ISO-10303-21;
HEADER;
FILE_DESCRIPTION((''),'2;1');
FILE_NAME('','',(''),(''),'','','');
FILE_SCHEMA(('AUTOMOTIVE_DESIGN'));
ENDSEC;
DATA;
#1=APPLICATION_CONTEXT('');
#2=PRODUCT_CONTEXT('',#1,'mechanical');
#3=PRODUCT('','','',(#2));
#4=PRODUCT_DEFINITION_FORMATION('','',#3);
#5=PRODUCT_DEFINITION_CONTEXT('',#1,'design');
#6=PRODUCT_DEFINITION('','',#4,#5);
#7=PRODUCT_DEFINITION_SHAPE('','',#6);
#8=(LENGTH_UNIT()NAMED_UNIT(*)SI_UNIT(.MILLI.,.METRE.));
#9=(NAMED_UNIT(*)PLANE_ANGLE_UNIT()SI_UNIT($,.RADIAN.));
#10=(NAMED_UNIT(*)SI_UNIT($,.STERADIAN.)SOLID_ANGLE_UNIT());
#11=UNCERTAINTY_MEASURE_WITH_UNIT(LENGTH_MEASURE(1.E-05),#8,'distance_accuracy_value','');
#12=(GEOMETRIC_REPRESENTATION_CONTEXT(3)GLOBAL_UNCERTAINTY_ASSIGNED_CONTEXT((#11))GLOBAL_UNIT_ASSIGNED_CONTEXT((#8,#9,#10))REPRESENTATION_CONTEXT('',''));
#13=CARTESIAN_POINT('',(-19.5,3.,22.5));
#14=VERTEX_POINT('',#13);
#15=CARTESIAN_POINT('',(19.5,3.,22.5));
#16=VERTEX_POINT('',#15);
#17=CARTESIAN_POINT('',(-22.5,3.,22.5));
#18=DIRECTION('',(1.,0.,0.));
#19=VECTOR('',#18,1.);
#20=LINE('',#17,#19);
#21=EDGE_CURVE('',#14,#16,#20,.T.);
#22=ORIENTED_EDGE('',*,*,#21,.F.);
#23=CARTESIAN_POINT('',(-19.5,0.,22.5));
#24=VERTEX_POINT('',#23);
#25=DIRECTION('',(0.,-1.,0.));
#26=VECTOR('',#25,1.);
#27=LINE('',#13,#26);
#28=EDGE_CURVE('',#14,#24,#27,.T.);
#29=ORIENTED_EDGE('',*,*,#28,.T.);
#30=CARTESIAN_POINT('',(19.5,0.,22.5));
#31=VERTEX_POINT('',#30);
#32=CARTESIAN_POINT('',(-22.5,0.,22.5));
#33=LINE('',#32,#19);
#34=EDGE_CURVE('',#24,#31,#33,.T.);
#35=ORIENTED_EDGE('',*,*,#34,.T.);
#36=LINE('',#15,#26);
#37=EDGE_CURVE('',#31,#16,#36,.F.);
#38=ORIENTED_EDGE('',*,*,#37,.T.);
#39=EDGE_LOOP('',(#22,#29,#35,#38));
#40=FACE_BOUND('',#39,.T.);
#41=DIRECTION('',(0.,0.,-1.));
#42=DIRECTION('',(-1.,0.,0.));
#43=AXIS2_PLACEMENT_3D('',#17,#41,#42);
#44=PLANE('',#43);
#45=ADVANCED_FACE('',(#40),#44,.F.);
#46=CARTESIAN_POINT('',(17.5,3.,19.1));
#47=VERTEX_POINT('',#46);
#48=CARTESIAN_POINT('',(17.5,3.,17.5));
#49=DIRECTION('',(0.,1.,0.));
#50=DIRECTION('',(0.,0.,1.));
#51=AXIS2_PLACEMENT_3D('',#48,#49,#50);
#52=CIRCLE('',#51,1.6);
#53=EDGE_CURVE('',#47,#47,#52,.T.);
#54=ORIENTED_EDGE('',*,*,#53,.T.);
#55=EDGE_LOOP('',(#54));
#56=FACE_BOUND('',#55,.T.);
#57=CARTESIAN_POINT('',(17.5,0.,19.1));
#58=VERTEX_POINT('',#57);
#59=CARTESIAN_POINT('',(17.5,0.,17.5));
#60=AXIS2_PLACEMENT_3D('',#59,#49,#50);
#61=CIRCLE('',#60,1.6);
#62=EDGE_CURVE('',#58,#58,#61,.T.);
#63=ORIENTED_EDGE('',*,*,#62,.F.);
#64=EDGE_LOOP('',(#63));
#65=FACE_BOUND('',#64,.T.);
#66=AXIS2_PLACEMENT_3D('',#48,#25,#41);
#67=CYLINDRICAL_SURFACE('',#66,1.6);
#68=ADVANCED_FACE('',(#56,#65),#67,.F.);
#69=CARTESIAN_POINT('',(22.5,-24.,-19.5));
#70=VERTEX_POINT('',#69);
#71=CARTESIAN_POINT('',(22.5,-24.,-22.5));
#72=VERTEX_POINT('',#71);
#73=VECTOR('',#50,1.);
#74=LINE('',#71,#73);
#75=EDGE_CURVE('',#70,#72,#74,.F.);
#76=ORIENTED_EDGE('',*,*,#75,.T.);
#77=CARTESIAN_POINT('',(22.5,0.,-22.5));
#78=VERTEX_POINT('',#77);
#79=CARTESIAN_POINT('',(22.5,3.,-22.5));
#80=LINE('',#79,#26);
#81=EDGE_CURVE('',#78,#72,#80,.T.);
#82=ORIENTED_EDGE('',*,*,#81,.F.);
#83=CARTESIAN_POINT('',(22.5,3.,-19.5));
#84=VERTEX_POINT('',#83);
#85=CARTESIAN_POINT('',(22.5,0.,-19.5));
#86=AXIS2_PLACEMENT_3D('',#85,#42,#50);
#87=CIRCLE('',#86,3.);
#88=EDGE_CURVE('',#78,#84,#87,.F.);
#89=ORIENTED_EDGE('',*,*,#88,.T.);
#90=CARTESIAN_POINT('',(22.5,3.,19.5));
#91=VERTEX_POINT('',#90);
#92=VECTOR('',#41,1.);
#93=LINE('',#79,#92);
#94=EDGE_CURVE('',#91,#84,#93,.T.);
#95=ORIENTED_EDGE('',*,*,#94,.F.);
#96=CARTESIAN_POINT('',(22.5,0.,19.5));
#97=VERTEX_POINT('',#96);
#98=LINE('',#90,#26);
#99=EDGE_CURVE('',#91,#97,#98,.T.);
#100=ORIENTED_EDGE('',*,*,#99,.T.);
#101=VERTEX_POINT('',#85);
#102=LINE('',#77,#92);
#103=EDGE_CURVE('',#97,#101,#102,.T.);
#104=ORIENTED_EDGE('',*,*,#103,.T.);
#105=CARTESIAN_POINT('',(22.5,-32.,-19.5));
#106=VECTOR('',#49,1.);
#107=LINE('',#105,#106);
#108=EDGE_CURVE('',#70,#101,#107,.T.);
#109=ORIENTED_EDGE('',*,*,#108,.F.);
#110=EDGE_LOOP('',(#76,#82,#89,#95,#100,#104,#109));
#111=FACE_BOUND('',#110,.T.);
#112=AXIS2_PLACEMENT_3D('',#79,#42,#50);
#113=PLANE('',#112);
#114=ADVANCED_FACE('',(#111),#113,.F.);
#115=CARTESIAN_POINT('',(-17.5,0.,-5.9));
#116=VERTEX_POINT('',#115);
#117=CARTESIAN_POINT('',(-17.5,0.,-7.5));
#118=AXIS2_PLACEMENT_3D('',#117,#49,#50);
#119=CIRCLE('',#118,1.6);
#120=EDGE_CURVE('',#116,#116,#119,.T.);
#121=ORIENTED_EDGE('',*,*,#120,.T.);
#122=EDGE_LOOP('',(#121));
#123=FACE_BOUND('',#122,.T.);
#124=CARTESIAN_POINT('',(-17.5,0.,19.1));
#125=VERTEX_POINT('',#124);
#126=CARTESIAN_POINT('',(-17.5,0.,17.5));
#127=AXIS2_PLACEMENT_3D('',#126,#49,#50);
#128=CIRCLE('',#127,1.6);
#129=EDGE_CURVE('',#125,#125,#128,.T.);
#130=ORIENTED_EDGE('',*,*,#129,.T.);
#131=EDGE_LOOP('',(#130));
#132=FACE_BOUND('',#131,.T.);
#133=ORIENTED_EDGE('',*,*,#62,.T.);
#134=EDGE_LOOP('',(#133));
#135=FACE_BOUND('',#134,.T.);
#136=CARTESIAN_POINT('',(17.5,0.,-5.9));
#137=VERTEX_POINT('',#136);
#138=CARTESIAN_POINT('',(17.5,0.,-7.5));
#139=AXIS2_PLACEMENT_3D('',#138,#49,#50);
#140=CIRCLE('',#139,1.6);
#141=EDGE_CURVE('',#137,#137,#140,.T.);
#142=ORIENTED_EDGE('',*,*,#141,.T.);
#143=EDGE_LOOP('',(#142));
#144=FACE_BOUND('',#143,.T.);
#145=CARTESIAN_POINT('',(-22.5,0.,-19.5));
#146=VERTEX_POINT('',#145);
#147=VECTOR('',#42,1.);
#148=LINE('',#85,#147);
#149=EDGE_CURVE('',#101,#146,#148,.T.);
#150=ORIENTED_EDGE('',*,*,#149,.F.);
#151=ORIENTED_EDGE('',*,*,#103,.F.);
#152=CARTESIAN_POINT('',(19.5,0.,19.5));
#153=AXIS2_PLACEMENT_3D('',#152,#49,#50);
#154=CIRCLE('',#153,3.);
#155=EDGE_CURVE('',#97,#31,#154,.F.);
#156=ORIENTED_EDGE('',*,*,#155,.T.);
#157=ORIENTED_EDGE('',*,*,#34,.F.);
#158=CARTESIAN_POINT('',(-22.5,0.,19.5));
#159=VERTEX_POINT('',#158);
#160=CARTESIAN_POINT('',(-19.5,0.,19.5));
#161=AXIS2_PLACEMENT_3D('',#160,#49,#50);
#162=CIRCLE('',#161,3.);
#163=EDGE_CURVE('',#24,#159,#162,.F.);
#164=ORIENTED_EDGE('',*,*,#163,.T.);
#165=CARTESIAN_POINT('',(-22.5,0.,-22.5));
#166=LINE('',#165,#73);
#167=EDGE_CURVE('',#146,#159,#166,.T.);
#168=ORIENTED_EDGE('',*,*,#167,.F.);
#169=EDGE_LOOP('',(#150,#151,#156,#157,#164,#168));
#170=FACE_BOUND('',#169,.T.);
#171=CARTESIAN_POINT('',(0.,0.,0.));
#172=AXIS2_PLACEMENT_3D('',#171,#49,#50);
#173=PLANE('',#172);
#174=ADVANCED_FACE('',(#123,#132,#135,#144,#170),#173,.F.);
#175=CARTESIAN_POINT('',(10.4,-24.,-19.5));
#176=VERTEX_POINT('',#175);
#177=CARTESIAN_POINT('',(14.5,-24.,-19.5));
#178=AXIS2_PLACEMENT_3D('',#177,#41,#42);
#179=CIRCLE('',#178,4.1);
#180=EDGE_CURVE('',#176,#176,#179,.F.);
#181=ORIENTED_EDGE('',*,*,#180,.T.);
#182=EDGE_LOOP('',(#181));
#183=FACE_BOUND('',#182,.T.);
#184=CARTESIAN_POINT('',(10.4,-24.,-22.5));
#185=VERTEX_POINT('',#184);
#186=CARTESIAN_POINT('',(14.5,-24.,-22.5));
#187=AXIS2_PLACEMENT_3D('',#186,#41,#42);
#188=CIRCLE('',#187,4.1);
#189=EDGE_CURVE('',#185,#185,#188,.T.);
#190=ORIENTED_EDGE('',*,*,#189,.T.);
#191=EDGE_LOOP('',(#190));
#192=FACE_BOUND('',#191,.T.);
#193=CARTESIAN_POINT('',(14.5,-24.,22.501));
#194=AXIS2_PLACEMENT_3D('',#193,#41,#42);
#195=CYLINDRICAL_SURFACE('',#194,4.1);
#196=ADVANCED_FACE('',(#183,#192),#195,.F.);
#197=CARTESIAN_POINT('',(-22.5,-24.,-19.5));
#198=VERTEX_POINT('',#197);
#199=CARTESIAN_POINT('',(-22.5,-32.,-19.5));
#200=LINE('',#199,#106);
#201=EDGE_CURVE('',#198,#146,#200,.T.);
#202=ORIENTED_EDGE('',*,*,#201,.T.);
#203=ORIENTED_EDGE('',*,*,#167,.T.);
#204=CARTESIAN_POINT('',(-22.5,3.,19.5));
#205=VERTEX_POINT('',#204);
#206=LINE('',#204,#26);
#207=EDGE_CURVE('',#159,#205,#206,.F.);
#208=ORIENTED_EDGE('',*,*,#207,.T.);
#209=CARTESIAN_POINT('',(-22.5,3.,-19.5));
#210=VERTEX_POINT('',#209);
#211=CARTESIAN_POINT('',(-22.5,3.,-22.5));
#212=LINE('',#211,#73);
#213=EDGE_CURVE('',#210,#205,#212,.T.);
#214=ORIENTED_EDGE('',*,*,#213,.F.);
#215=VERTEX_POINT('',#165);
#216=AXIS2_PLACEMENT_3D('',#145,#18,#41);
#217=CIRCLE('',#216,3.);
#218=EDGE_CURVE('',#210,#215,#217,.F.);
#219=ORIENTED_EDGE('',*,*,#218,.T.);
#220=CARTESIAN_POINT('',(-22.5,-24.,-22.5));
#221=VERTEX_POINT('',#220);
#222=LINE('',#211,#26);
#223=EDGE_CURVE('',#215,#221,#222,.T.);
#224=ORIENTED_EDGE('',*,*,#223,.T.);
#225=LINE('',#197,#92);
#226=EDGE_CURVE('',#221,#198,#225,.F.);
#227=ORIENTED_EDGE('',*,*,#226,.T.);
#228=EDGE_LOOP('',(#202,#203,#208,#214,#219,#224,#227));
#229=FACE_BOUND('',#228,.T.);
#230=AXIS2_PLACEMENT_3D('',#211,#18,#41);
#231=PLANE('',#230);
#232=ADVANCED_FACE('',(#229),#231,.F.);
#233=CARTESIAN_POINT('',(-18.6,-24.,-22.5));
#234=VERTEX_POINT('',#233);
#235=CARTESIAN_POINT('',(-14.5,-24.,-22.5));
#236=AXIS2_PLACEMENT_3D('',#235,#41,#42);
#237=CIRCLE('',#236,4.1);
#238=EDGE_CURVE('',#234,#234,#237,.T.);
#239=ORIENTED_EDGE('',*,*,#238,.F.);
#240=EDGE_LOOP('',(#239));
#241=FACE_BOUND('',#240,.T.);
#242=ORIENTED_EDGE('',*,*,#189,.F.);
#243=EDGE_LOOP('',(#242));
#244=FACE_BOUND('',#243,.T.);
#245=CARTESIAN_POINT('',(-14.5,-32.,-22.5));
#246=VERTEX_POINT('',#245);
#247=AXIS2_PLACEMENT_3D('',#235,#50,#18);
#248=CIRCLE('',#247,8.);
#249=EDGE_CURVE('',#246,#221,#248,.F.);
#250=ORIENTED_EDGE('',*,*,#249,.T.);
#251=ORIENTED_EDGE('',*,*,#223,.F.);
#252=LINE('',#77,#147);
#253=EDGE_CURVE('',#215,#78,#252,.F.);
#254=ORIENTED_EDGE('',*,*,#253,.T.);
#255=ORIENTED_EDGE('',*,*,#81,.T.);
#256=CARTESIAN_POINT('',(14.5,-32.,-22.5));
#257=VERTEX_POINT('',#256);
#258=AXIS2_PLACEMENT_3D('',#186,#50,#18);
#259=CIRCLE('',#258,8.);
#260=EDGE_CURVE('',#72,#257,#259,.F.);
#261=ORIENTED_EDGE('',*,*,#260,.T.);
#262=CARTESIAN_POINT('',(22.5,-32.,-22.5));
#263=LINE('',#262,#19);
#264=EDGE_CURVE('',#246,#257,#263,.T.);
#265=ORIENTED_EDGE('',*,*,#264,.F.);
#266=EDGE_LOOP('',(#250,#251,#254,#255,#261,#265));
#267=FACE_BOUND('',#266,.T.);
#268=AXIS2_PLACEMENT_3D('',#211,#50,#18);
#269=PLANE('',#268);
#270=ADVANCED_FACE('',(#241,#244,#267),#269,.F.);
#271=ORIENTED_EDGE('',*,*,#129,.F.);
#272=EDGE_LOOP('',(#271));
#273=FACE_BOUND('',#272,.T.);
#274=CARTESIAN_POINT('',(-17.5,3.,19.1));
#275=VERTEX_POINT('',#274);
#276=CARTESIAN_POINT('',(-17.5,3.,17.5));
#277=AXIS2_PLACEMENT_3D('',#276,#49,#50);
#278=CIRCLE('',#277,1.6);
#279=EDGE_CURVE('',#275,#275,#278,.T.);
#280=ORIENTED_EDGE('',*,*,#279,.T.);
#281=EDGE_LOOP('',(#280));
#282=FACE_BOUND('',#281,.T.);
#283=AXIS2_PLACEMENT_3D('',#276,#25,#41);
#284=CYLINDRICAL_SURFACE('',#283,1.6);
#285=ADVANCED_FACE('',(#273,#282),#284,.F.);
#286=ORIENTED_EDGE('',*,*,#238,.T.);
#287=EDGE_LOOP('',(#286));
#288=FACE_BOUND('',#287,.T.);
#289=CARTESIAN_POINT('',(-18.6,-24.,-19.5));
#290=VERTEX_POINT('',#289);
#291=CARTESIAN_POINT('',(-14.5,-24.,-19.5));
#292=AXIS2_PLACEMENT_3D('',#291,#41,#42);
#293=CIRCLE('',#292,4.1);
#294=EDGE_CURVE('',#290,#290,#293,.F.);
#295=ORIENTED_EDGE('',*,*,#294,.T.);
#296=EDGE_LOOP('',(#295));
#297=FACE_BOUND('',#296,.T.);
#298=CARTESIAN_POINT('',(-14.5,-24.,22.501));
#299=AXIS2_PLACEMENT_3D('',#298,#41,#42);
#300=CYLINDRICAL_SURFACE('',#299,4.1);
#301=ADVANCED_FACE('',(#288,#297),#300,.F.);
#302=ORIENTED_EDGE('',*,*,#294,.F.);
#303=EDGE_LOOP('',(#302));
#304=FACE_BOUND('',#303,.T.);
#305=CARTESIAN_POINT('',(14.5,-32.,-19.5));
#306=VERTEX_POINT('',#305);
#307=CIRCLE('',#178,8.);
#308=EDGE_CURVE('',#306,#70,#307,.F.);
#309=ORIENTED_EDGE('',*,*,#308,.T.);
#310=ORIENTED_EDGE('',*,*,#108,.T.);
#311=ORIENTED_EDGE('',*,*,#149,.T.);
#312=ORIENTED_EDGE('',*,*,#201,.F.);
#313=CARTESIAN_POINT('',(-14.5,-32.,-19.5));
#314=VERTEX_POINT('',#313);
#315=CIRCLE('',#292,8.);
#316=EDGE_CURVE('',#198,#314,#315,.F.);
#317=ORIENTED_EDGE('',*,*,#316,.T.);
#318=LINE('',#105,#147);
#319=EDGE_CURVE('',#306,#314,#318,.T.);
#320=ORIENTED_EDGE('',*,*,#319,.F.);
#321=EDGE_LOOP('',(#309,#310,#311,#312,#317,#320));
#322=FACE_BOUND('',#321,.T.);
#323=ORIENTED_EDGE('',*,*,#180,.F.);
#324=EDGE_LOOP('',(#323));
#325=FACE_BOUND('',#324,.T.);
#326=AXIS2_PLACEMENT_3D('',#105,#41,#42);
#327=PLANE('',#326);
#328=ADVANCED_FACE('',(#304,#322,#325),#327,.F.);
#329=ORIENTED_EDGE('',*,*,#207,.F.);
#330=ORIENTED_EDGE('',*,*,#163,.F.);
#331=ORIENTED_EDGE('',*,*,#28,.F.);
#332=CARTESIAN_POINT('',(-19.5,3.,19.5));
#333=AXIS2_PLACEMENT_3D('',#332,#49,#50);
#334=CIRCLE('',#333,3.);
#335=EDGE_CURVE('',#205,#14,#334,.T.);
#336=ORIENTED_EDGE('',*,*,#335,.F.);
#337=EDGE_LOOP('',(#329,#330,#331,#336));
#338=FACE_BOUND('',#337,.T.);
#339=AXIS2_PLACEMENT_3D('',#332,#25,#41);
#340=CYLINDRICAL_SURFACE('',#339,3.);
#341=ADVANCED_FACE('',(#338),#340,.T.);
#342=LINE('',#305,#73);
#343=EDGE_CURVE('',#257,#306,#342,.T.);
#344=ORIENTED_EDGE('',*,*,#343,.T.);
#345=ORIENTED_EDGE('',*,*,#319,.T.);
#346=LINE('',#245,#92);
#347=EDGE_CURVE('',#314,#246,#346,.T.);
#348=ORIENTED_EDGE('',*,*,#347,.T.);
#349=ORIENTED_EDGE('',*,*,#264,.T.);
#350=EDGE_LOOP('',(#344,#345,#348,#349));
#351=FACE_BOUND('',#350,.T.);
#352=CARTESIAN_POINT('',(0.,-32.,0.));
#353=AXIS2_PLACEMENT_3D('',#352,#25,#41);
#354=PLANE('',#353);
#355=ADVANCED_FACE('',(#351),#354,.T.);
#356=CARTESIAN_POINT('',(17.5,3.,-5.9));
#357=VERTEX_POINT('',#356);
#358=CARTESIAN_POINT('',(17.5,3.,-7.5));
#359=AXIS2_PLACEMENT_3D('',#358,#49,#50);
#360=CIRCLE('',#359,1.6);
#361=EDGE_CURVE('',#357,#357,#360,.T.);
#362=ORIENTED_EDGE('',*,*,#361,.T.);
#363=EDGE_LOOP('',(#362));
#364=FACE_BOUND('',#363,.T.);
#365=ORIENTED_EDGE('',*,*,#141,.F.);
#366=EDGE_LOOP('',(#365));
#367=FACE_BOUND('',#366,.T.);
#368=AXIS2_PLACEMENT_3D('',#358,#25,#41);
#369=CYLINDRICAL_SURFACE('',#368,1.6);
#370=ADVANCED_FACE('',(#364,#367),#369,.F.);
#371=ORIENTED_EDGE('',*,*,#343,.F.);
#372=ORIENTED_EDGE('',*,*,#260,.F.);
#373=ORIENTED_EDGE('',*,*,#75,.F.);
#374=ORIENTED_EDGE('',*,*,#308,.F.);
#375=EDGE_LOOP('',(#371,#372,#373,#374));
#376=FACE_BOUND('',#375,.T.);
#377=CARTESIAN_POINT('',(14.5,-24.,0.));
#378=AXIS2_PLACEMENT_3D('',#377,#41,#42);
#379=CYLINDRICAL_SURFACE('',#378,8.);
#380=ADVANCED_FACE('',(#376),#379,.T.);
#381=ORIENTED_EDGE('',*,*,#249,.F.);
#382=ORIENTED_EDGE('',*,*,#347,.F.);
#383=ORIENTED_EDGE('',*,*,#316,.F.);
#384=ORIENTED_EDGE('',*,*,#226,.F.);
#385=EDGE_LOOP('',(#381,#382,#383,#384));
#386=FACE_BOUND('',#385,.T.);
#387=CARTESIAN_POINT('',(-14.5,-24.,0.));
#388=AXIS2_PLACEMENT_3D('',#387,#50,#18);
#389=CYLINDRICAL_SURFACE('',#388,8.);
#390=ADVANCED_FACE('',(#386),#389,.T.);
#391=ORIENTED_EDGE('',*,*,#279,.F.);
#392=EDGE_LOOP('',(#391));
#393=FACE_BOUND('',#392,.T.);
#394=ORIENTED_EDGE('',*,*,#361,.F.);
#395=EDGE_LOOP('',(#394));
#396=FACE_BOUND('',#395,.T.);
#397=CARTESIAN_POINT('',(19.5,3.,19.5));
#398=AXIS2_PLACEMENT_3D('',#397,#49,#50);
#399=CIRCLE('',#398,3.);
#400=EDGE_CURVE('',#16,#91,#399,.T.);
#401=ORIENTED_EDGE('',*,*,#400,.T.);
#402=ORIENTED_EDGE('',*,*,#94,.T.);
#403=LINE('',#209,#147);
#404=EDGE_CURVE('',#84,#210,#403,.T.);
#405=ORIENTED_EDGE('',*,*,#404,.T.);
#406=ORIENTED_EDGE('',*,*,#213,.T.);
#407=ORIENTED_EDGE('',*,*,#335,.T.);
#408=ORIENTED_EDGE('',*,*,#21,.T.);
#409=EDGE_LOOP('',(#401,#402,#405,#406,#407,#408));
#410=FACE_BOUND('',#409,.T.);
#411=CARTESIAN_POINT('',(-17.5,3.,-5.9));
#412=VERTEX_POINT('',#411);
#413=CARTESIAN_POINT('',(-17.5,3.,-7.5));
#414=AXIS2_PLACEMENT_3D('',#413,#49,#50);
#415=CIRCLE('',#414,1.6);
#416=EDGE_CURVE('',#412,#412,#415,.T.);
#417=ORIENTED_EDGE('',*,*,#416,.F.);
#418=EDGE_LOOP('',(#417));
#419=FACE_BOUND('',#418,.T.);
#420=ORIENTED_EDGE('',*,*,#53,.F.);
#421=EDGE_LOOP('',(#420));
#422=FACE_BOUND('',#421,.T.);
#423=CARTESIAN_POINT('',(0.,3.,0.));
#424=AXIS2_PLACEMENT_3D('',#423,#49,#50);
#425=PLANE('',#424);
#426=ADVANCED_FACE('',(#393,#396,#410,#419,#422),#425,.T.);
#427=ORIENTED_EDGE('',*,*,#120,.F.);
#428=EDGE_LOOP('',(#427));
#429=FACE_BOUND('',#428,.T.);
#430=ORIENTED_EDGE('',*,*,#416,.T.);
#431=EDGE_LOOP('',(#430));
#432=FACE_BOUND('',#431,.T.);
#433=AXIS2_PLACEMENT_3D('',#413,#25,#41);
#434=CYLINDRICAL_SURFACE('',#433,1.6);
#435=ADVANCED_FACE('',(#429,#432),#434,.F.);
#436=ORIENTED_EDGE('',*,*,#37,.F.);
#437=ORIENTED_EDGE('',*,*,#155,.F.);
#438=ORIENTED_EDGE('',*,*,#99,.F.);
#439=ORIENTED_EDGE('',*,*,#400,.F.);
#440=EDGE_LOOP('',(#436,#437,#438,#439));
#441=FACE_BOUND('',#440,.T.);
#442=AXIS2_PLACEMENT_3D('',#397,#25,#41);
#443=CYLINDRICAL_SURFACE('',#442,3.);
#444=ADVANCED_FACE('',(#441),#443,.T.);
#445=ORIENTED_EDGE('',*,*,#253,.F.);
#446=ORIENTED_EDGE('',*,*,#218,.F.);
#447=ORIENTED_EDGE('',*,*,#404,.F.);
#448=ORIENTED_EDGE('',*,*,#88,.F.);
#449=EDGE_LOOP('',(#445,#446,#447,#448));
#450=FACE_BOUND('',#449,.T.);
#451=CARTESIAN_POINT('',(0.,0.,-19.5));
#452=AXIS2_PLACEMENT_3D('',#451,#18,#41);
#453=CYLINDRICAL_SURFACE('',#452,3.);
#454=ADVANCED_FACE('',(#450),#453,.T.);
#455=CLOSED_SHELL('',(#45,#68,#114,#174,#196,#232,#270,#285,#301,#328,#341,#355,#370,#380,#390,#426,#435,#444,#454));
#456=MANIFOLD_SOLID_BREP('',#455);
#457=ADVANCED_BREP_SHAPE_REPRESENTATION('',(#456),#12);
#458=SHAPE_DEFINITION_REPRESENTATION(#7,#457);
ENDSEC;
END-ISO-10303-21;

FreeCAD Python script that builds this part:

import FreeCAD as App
import Part
import Sketcher


def edges_at(feature, points):
    """Names of the edges that pass closest to the given points."""
    edges = feature.Shape.Edges
    near = lambda p: min(range(len(edges)), key=lambda i: edges[i].distToShape(Part.Vertex(*p))[0])
    return sorted({f"Edge{near(p) + 1}" for p in points})

doc = App.newDocument("Part")
body = doc.addObject("PartDesign::Body", "Body")

# Sketch on XZ plane
sketch1 = body.newObject("Sketcher::SketchObject", "Sketch")
sketch1.AttachmentSupport = (doc.getObject("XZ_Plane"), [""])
sketch1.MapMode = "FlatFace"
sketch1.addGeometry([
    Part.LineSegment(App.Vector(-22.5, -22.5, 0), App.Vector(-22.5, 22.5, 0)),  # 0
    Part.LineSegment(App.Vector(-22.5, 22.5, 0), App.Vector(22.5, 22.5, 0)),  # 1
    Part.LineSegment(App.Vector(22.5, 22.5, 0), App.Vector(22.5, -22.5, 0)),  # 2
    Part.LineSegment(App.Vector(22.5, -22.5, 0), App.Vector(-22.5, -22.5, 0)),  # 3
    Part.Circle(App.Vector(-17.5, 17.5, 0), App.Vector(0, 0, 1), 1.6),  # 4
    Part.Circle(App.Vector(17.5, 17.5, 0), App.Vector(0, 0, 1), 1.6),  # 5
    Part.Circle(App.Vector(-17.5, -7.5, 0), App.Vector(0, 0, 1), 1.6),  # 6
    Part.Circle(App.Vector(17.5, -7.5, 0), App.Vector(0, 0, 1), 1.6),  # 7
], False)
sketch1.addConstraint([
    Sketcher.Constraint("Coincident", 0, 2, 1, 1),
    Sketcher.Constraint("Coincident", 1, 2, 2, 1),
    Sketcher.Constraint("Coincident", 2, 2, 3, 1),
    Sketcher.Constraint("Coincident", 3, 2, 0, 1),
    Sketcher.Constraint("Vertical", 0),
    Sketcher.Constraint("Horizontal", 1),
    Sketcher.Constraint("Vertical", 2),
    Sketcher.Constraint("Horizontal", 3),
    Sketcher.Constraint("Equal", 4, 5),
    Sketcher.Constraint("Equal", 5, 6),
    Sketcher.Constraint("Equal", 6, 7),
    Sketcher.Constraint("Symmetric", 0, 2, 2, 2, -1, 1),
    Sketcher.Constraint("Symmetric", 4, 3, 5, 3, -2),
    Sketcher.Constraint("Symmetric", 6, 3, 7, 3, -2),
    Sketcher.Constraint("Vertical", 4, 3, 6, 3),
    Sketcher.Constraint("Equal", 3, 0),
    Sketcher.Constraint("Diameter", 4, 3.2),
    Sketcher.Constraint("DistanceX", 1, 1, 1, 2, 45.0),
    Sketcher.Constraint("DistanceX", 4, 3, 5, 3, 35.0),
    Sketcher.Constraint("DistanceY", 6, 3, 4, 3, 25.0),
    Sketcher.Constraint("DistanceY", 4, 3, 0, 2, 5.0),
])
pad1 = body.newObject("PartDesign::Pad", "Pad")
pad1.Profile = sketch1
pad1.Length = 3
pad1.Reversed = True

# Sketch on XZ plane
sketch2 = body.newObject("Sketcher::SketchObject", "Sketch001")
sketch2.AttachmentSupport = (doc.getObject("XZ_Plane"), [""])
sketch2.MapMode = "FlatFace"
sketch2.addGeometry([
    Part.LineSegment(App.Vector(-22.5, -19.5, 0), App.Vector(-22.5, -22.5, 0)),
    Part.LineSegment(App.Vector(-22.5, -22.5, 0), App.Vector(22.5, -22.5, 0)),
    Part.LineSegment(App.Vector(22.5, -22.5, 0), App.Vector(22.5, -19.5, 0)),
    Part.LineSegment(App.Vector(22.5, -19.5, 0), App.Vector(-22.5, -19.5, 0)),
], False)
sketch2.addConstraint([
    Sketcher.Constraint("Coincident", 0, 2, 1, 1),
    Sketcher.Constraint("Coincident", 1, 2, 2, 1),
    Sketcher.Constraint("Coincident", 2, 2, 3, 1),
    Sketcher.Constraint("Coincident", 3, 2, 0, 1),
    Sketcher.Constraint("Vertical", 0),
    Sketcher.Constraint("Horizontal", 1),
    Sketcher.Constraint("Vertical", 2),
    Sketcher.Constraint("Horizontal", 3),
    Sketcher.Constraint("DistanceX", 1, 1, 1, 2, 45.0),
    Sketcher.Constraint("DistanceY", 0, 2, 0, 1, 3.0),
    Sketcher.Constraint("DistanceX", 0, 2, -1, 1, 22.5),
    Sketcher.Constraint("DistanceY", 0, 2, -1, 1, 22.5),
])
pad2 = body.newObject("PartDesign::Pad", "Pad001")
pad2.Profile = sketch2
pad2.Length = 32

# Sketch on XY plane
sketch3 = body.newObject("Sketcher::SketchObject", "Sketch002")
sketch3.AttachmentSupport = (doc.getObject("XY_Plane"), [""])
sketch3.MapMode = "FlatFace"
sketch3.AttachmentOffset = App.Placement(App.Vector(0, 0, -22.5), App.Rotation())
sketch3.addGeometry(Part.Circle(App.Vector(14.5, -24, 0), App.Vector(0, 0, 1), 4.1), False)
sketch3.addConstraint([
    Sketcher.Constraint("Diameter", 0, 8.2),
    Sketcher.Constraint("DistanceY", 0, 3, -1, 1, 24.0),
    Sketcher.Constraint("DistanceX", -1, 1, 0, 3, 14.5),
])
pocket1 = body.newObject("PartDesign::Pocket", "Pocket")
pocket1.Profile = sketch3
pocket1.Type = "UpToFirst"
pocket1.Reversed = True

# Sketch on XY plane
sketch4 = body.newObject("Sketcher::SketchObject", "Sketch003")
sketch4.AttachmentSupport = (doc.getObject("XY_Plane"), [""])
sketch4.MapMode = "FlatFace"
sketch4.AttachmentOffset = App.Placement(App.Vector(0, 0, -22.5), App.Rotation())
sketch4.addGeometry(Part.Circle(App.Vector(-14.5, -24, 0), App.Vector(0, 0, 1), 4.1), False)
sketch4.addConstraint([
    Sketcher.Constraint("Diameter", 0, 8.2),
    Sketcher.Constraint("DistanceY", 0, 3, -1, 1, 24.0),
    Sketcher.Constraint("DistanceX", 0, 3, -1, 1, 14.5),
])
pocket2 = body.newObject("PartDesign::Pocket", "Pocket001")
pocket2.Profile = sketch4
pocket2.Type = "UpToFirst"
pocket2.Reversed = True
doc.recompute()

fillet = body.newObject("PartDesign::Fillet", "Fillet")
fillet.Base = (pocket2, edges_at(pocket2, [(22.5, 1.5, 22.5), (-22.5, 1.5, 22.5), (0, 3, -22.5)]))
fillet.Radius = 3
doc.recompute()

fillet2 = body.newObject("PartDesign::Fillet", "Fillet001")
fillet2.Base = (fillet, edges_at(fillet, [(22.5, -32, -21), (-22.5, -32, -21)]))
fillet2.Radius = 8

doc.recompute()
